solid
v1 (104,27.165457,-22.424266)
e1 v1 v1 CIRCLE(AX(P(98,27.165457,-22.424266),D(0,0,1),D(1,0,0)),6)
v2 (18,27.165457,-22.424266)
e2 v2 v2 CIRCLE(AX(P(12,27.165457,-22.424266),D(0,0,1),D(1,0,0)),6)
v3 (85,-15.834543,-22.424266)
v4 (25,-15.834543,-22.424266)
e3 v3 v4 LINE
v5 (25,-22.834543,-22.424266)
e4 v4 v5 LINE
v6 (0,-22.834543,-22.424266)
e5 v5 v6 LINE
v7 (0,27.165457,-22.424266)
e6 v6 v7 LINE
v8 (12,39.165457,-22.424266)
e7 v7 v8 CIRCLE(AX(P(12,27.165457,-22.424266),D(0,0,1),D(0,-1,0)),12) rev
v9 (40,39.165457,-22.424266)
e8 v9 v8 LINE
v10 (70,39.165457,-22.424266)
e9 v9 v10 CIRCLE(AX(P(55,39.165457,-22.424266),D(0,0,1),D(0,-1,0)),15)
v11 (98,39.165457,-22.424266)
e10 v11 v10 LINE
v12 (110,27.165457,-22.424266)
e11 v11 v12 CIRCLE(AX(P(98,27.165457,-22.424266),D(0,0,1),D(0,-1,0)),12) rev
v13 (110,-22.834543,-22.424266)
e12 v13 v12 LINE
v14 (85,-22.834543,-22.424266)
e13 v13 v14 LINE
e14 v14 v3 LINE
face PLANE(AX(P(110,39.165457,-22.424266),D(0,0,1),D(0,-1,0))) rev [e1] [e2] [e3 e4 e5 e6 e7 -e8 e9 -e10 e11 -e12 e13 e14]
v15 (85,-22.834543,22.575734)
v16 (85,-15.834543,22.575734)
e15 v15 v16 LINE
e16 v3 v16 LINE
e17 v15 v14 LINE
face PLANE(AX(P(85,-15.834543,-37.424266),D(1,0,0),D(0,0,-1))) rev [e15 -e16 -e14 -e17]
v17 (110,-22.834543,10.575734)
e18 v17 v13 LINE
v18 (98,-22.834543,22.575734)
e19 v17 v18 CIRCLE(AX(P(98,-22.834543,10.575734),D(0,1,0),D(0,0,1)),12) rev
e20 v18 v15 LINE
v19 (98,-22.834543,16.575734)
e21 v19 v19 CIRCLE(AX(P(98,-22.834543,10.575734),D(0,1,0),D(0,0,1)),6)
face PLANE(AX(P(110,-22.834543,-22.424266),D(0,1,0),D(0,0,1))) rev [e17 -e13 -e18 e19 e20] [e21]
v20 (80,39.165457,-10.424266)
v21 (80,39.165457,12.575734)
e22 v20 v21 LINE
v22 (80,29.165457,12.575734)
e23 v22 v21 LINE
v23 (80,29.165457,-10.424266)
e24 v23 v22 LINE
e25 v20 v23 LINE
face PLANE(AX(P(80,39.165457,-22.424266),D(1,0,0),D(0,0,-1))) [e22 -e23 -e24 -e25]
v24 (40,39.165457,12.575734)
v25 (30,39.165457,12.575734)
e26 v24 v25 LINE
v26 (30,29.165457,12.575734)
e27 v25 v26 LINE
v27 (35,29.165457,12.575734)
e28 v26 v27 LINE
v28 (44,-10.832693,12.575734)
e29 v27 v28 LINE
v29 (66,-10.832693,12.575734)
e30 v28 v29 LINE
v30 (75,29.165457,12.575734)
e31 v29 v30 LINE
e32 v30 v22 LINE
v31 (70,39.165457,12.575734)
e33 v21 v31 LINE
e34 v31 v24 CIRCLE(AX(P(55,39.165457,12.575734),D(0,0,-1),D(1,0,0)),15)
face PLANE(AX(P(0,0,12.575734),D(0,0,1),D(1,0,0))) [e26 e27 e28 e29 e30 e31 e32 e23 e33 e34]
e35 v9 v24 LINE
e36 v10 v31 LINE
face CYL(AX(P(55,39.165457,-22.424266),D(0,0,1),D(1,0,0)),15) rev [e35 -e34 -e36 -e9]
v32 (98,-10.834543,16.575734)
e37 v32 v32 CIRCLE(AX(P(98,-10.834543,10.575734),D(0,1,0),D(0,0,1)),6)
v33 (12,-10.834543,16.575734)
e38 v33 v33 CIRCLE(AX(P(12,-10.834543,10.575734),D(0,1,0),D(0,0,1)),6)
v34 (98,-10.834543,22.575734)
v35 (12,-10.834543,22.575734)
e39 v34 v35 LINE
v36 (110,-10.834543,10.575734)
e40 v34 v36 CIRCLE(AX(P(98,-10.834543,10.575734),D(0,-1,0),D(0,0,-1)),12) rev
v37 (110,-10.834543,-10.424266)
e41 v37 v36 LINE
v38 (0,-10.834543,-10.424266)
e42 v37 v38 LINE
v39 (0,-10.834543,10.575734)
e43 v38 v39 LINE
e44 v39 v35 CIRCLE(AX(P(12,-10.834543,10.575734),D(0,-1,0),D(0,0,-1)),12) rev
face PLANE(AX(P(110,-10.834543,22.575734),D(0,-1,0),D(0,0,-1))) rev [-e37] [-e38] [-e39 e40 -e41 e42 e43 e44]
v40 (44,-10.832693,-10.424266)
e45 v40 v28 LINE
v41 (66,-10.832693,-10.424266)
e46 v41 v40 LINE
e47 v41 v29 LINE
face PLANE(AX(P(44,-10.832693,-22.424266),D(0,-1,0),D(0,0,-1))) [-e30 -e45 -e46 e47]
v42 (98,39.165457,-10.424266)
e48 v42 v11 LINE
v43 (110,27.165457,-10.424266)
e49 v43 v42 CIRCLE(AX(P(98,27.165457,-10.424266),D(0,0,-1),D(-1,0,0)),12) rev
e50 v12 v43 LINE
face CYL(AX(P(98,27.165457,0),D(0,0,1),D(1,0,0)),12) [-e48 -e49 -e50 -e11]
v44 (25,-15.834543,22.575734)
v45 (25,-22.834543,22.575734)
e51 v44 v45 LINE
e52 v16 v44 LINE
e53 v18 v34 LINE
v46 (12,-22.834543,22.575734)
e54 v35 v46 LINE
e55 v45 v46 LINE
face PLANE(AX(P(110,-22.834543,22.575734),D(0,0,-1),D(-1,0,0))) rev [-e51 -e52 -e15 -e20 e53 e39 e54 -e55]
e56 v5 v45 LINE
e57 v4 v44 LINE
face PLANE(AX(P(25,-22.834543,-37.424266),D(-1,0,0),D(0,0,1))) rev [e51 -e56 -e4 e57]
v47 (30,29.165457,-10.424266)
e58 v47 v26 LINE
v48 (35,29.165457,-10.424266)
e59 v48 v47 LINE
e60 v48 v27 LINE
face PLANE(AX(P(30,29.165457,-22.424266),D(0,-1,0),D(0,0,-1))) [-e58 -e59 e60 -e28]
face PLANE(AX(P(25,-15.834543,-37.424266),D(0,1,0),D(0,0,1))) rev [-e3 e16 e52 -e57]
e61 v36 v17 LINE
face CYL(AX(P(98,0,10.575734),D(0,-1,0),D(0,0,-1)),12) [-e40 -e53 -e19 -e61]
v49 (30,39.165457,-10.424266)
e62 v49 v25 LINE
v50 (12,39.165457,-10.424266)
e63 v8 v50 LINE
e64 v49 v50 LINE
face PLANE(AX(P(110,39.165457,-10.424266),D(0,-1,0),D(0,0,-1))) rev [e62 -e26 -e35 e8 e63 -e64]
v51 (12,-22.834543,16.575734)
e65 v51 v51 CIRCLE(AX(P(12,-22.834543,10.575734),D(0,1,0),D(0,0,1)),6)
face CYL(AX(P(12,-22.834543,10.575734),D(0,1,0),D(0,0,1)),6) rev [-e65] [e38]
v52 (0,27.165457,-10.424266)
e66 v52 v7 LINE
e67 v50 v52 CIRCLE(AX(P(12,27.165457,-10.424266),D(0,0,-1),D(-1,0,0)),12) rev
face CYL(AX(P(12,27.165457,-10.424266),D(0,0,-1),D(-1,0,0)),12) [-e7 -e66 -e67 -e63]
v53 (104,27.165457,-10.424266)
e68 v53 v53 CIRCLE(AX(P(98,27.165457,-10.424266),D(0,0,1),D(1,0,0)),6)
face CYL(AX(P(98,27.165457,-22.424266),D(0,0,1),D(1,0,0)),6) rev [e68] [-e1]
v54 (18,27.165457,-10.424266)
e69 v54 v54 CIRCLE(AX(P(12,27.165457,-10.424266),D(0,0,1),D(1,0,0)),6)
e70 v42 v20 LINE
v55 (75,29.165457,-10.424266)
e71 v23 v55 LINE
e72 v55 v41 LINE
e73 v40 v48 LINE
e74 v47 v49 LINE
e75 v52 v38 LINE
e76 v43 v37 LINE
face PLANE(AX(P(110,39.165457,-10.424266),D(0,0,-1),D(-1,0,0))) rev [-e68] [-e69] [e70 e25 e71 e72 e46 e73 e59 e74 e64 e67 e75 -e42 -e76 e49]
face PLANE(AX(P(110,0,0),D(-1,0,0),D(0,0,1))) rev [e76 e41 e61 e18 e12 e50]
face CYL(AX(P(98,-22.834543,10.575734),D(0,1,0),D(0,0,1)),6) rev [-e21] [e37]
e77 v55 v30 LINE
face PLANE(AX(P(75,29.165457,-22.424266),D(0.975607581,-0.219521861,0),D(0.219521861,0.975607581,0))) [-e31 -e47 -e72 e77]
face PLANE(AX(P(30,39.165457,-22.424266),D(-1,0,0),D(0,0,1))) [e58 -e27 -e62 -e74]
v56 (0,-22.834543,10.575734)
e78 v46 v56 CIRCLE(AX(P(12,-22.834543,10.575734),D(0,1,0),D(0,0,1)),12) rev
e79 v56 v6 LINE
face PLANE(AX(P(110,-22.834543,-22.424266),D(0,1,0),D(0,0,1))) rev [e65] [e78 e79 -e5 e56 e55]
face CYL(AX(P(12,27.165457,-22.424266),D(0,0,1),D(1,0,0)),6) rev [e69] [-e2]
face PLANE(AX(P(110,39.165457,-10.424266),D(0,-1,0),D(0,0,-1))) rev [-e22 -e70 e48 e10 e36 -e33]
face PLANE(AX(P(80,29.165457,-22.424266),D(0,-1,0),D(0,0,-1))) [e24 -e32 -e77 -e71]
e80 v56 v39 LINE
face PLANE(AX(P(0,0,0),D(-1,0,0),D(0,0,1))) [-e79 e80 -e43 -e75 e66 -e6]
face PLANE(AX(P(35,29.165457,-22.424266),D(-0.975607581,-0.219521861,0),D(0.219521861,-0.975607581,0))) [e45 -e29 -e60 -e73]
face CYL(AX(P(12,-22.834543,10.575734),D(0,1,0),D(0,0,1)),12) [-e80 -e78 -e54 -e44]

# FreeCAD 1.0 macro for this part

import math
import FreeCAD as App
import Part
import Sketcher
Q = App.Units.Quantity


def edges_at(feature, points):
    """Names of the edges that pass closest to the given points."""
    edges = feature.Shape.Edges
    near = lambda p: min(range(len(edges)), key=lambda i: edges[i].distToShape(Part.Vertex(*p))[0])
    return sorted({f"Edge{near(p) + 1}" for p in points})


def add_polygon(sketch, points):
    """Adds a closed chain of lines whose ends are joined by coincident constraints."""
    first, n = sketch.GeometryCount, len(points)
    for a, b in zip(points, points[1:] + points[:1]):
        sketch.addGeometry(Part.LineSegment(App.Vector(*a, 0), App.Vector(*b, 0)), False)
    for i in range(n):
        sketch.addConstraint(Sketcher.Constraint("Coincident", first + i, 2, first + (i + 1) % n, 1))

doc = App.newDocument("Part")
body = doc.addObject("PartDesign::Body", "Body")

# Sketch on YZ plane
sketch1 = body.newObject("Sketcher::SketchObject", "Sketch")
sketch1.AttachmentSupport = (doc.getObject("YZ_Plane"), [""])
sketch1.MapMode = "FlatFace"
add_polygon(sketch1, [(39.165457, -22.424266), (39.165457, -10.424266), (-10.834543, -10.424266), (-10.834543, 22.575734), (-22.834543, 22.575734), (-22.834543, -22.424266)])  # lines 0-5
sketch1.addConstraint(Sketcher.Constraint("Vertical", 0))
sketch1.addConstraint(Sketcher.Constraint("Horizontal", 1))
sketch1.addConstraint(Sketcher.Constraint("Vertical", 2))
sketch1.addConstraint(Sketcher.Constraint("Horizontal", 3))
sketch1.addConstraint(Sketcher.Constraint("Vertical", 4))
sketch1.addConstraint(Sketcher.Constraint("Horizontal", 5))
sketch1.addConstraint(Sketcher.Constraint("Equal", 3, 0))
sketch1.addConstraint(Sketcher.Constraint("DistanceX", 1, 2, 1, 1, Q("50 mm")))
sketch1.addConstraint(Sketcher.Constraint("DistanceX", 3, 2, 3, 1, Q("12 mm")))
sketch1.addConstraint(Sketcher.Constraint("DistanceY", 2, 1, 2, 2, Q("33 mm")))
sketch1.addConstraint(Sketcher.Constraint("DistanceX", -1, 1, 0, 2, Q("39.165457 mm")))
sketch1.addConstraint(Sketcher.Constraint("DistanceY", 0, 2, -1, 1, Q("10.424266 mm")))
pad1 = body.newObject("PartDesign::Pad", "Pad")
pad1.Profile = sketch1
pad1.Length = 110
doc.recompute()

fillet = body.newObject("PartDesign::Fillet", "Fillet")
fillet.Base = (pad1, edges_at(pad1, [
    (110, -16.835, 22.576),
    (0, -16.835, 22.576),
    (110, 39.165, -16.424),
    (0, 39.165, -16.424),
]))
fillet.Radius = 12

# Sketch on XZ plane
sketch2 = body.newObject("Sketcher::SketchObject", "Sketch001")
sketch2.AttachmentSupport = (doc.getObject("XZ_Plane"), [""])
sketch2.MapMode = "FlatFace"
sketch2.AttachmentOffset = App.Placement(App.Vector(0, 0, 10.834543), App.Rotation())
sketch2.addGeometry(Part.Circle(App.Vector(12, 10.575734, 0), App.Vector(0, 0, 1), 6), False)
sketch2.addGeometry(Part.Circle(App.Vector(98, 10.575734, 0), App.Vector(0, 0, 1), 6), False)
sketch2.addConstraint(Sketcher.Constraint("Equal", 0, 1))
sketch2.addConstraint(Sketcher.Constraint("Horizontal", 0, 3, 1, 3))
sketch2.addConstraint(Sketcher.Constraint("Diameter", 0, Q("12 mm")))
sketch2.addConstraint(Sketcher.Constraint("DistanceX", -1, 1, 0, 3, Q("12 mm")))
sketch2.addConstraint(Sketcher.Constraint("DistanceX", -1, 1, 1, 3, Q("98 mm")))
sketch2.addConstraint(Sketcher.Constraint("DistanceY", -1, 1, 0, 3, Q("10.575734 mm")))
pocket1 = body.newObject("PartDesign::Pocket", "Pocket")
pocket1.Profile = sketch2
pocket1.Length = 12
pocket1.Reversed = True

# Sketch on XY plane
sketch3 = body.newObject("Sketcher::SketchObject", "Sketch002")
sketch3.AttachmentSupport = (doc.getObject("XY_Plane"), [""])
sketch3.MapMode = "FlatFace"
sketch3.AttachmentOffset = App.Placement(App.Vector(0, 0, -10.424266), App.Rotation())
sketch3.addGeometry(Part.Circle(App.Vector(12, 27.165457, 0), App.Vector(0, 0, 1), 6), False)
sketch3.addGeometry(Part.Circle(App.Vector(98, 27.165457, 0), App.Vector(0, 0, 1), 6), False)
sketch3.addConstraint(Sketcher.Constraint("Equal", 0, 1))
sketch3.addConstraint(Sketcher.Constraint("Horizontal", 0, 3, 1, 3))
sketch3.addConstraint(Sketcher.Constraint("Diameter", 0, Q("12 mm")))
sketch3.addConstraint(Sketcher.Constraint("DistanceX", -1, 1, 0, 3, Q("12 mm")))
sketch3.addConstraint(Sketcher.Constraint("DistanceX", -1, 1, 1, 3, Q("98 mm")))
sketch3.addConstraint(Sketcher.Constraint("DistanceY", -1, 1, 0, 3, Q("27.165457 mm")))
pocket2 = body.newObject("PartDesign::Pocket", "Pocket001")
pocket2.Profile = sketch3
pocket2.Length = 12

# Sketch on XY plane
sketch4 = body.newObject("Sketcher::SketchObject", "Sketch003")
sketch4.AttachmentSupport = (doc.getObject("XY_Plane"), [""])
sketch4.MapMode = "FlatFace"
sketch4.AttachmentOffset = App.Placement(App.Vector(0, 0, 22.575734), App.Rotation())
add_polygon(sketch4, [(25, -15.834543), (25, -22.834543), (85, -22.834543), (85, -15.834543)])  # lines 0-3
sketch4.addConstraint(Sketcher.Constraint("Vertical", 0))
sketch4.addConstraint(Sketcher.Constraint("Horizontal", 1))
sketch4.addConstraint(Sketcher.Constraint("Vertical", 2))
sketch4.addConstraint(Sketcher.Constraint("Horizontal", 3))
sketch4.addConstraint(Sketcher.Constraint("DistanceX", 1, 1, 1, 2, Q("60 mm")))
sketch4.addConstraint(Sketcher.Constraint("DistanceY", 0, 2, 0, 1, Q("7 mm")))
sketch4.addConstraint(Sketcher.Constraint("DistanceX", -1, 1, 0, 2, Q("25 mm")))
sketch4.addConstraint(Sketcher.Constraint("DistanceY", 0, 2, -1, 1, Q("22.834543 mm")))
pocket3 = body.newObject("PartDesign::Pocket", "Pocket002")
pocket3.Profile = sketch4
pocket3.Length = 60

# Sketch on XY plane
sketch5 = body.newObject("Sketcher::SketchObject", "Sketch004")
sketch5.AttachmentSupport = (doc.getObject("XY_Plane"), [""])
sketch5.MapMode = "FlatFace"
sketch5.AttachmentOffset = App.Placement(App.Vector(0, 0, -22.424266), App.Rotation())
sketch5.addGeometry(Part.LineSegment(App.Vector(40, 39.165457, 0), App.Vector(30, 39.165457, 0)), False)
sketch5.addGeometry(Part.LineSegment(App.Vector(30, 39.165457, 0), App.Vector(30, 29.165457, 0)), False)
sketch5.addGeometry(Part.LineSegment(App.Vector(30, 29.165457, 0), App.Vector(35, 29.165457, 0)), False)
sketch5.addGeometry(Part.LineSegment(App.Vector(35, 29.165457, 0), App.Vector(44, -10.832693, 0)), False)
sketch5.addGeometry(Part.LineSegment(App.Vector(44, -10.832693, 0), App.Vector(66, -10.832693, 0)), False)
sketch5.addGeometry(Part.LineSegment(App.Vector(66, -10.832693, 0), App.Vector(75, 29.165457, 0)), False)
sketch5.addGeometry(Part.LineSegment(App.Vector(75, 29.165457, 0), App.Vector(80, 29.165457, 0)), False)
sketch5.addGeometry(Part.LineSegment(App.Vector(80, 29.165457, 0), App.Vector(80, 39.165457, 0)), False)
sketch5.addGeometry(Part.LineSegment(App.Vector(80, 39.165457, 0), App.Vector(70, 39.165457, 0)), False)
sketch5.addGeometry(Part.ArcOfCircle(Part.Circle(App.Vector(55, 39.165457, 0), App.Vector(0, 0, 1), 15), math.radians(-180), math.radians(0)), False)
sketch5.addConstraint(Sketcher.Constraint("Coincident", 0, 2, 1, 1))
sketch5.addConstraint(Sketcher.Constraint("Coincident", 1, 2, 2, 1))
sketch5.addConstraint(Sketcher.Constraint("Coincident", 2, 2, 3, 1))
sketch5.addConstraint(Sketcher.Constraint("Coincident", 3, 2, 4, 1))
sketch5.addConstraint(Sketcher.Constraint("Coincident", 4, 2, 5, 1))
sketch5.addConstraint(Sketcher.Constraint("Coincident", 5, 2, 6, 1))
sketch5.addConstraint(Sketcher.Constraint("Coincident", 6, 2, 7, 1))
sketch5.addConstraint(Sketcher.Constraint("Coincident", 7, 2, 8, 1))
sketch5.addConstraint(Sketcher.Constraint("Coincident", 8, 2, 9, 2))
sketch5.addConstraint(Sketcher.Constraint("Coincident", 9, 1, 0, 1))
sketch5.addConstraint(Sketcher.Constraint("Horizontal", 0))
sketch5.addConstraint(Sketcher.Constraint("Vertical", 1))
sketch5.addConstraint(Sketcher.Constraint("Horizontal", 2))
sketch5.addConstraint(Sketcher.Constraint("Horizontal", 4))
sketch5.addConstraint(Sketcher.Constraint("Horizontal", 6))
sketch5.addConstraint(Sketcher.Constraint("Vertical", 7))
sketch5.addConstraint(Sketcher.Constraint("Horizontal", 8))
sketch5.addConstraint(Sketcher.Constraint("Horizontal", 9, 3, 0, 2))
sketch5.addConstraint(Sketcher.Constraint("Horizontal", 2, 2, 5, 2))
sketch5.addConstraint(Sketcher.Constraint("Horizontal", 0, 2, 7, 2))
sketch5.addConstraint(Sketcher.Constraint("Equal", 2, 6))
sketch5.addConstraint(Sketcher.Constraint("Equal", 0, 8))
sketch5.addConstraint(Sketcher.Constraint("Equal", 8, 1))
sketch5.addConstraint(Sketcher.Constraint("Equal", 3, 5))
sketch5.addConstraint(Sketcher.Constraint("Radius", 9, Q("15 mm")))
sketch5.addConstraint(Sketcher.Constraint("DistanceX", 0, 2, 0, 1, Q("10 mm")))
sketch5.addConstraint(Sketcher.Constraint("DistanceX", 2, 1, 2, 2, Q("5 mm")))
sketch5.addConstraint(Sketcher.Constraint("DistanceX", 4, 1, 4, 2, Q("22 mm")))
sketch5.addConstraint(Sketcher.Constraint("DistanceX", -1, 1, 9, 3, Q("55 mm")))
sketch5.addConstraint(Sketcher.Constraint("DistanceY", 3, 2, 2, 2, Q("39.99815 mm")))
sketch5.addConstraint(Sketcher.Constraint("DistanceY", -1, 1, 9, 3, Q("39.165457 mm")))
pad2 = body.newObject("PartDesign::Pad", "Pad001")
pad2.Profile = sketch5
pad2.Length = 35

# Sketch on XY plane
sketch6 = body.newObject("Sketcher::SketchObject", "Sketch005")
sketch6.AttachmentSupport = (doc.getObject("XY_Plane"), [""])
sketch6.MapMode = "FlatFace"
sketch6.AttachmentOffset = App.Placement(App.Vector(0, 0, -10.424266), App.Rotation())
sketch6.addGeometry(Part.LineSegment(App.Vector(70, 39.165457, 0), App.Vector(40, 39.165457, 0)), False)
sketch6.addGeometry(Part.ArcOfCircle(Part.Circle(App.Vector(55, 39.165457, 0), App.Vector(0, 0, 1), 15), math.radians(180), math.radians(360)), False)
sketch6.addConstraint(Sketcher.Constraint("Coincident", 0, 1, 1, 2))
sketch6.addConstraint(Sketcher.Constraint("Coincident", 1, 1, 0, 2))
sketch6.addConstraint(Sketcher.Constraint("Horizontal", 0))
sketch6.addConstraint(Sketcher.Constraint("Horizontal", 1, 3, 0, 1))
sketch6.addConstraint(Sketcher.Constraint("Radius", 1, Q("15 mm")))
sketch6.addConstraint(Sketcher.Constraint("DistanceX", -1, 1, 1, 3, Q("55 mm")))
sketch6.addConstraint(Sketcher.Constraint("DistanceY", -1, 1, 1, 3, Q("39.165457 mm")))
pocket4 = body.newObject("PartDesign::Pocket", "Pocket003")
pocket4.Profile = sketch6
pocket4.Length = 35

doc.recompute()
